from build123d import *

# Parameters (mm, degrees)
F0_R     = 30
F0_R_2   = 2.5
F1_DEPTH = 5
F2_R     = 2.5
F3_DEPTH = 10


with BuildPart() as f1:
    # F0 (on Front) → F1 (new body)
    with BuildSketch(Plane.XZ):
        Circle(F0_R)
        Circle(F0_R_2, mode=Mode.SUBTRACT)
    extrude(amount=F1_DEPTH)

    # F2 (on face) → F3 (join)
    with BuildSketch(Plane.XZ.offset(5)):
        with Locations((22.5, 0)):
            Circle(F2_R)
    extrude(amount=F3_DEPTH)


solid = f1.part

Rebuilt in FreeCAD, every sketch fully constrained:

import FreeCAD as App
import Part
import Sketcher

V = App.Vector

doc = App.newDocument("Part")
body = doc.addObject("PartDesign::Body", "Body")

# Sketch on XZ plane
sketch1 = body.newObject("Sketcher::SketchObject", "Sketch")
sketch1.AttachmentSupport = (doc.getObject("XZ_Plane"), [""])
sketch1.MapMode = "FlatFace"
sketch1.addGeometry([
    Part.Circle(V(0, 0, 0), V(0, 0, 1), 30),
    Part.Circle(V(0, 0, 0), V(0, 0, 1), 2.5),
], False)
sketch1.addConstraint([
    Sketcher.Constraint("Coincident", 0, 3, -1, 1),
    Sketcher.Constraint("Coincident", 1, 3, -1, 1),
    Sketcher.Constraint("Diameter", 0, 60.0),
    Sketcher.Constraint("Diameter", 1, 5.0),
])
pad1 = body.newObject("PartDesign::Pad", "Pad")
pad1.Profile = sketch1
pad1.Length = 5

# Sketch on XZ plane
sketch2 = body.newObject("Sketcher::SketchObject", "Sketch001")
sketch2.AttachmentSupport = (doc.getObject("XZ_Plane"), [""])
sketch2.MapMode = "FlatFace"
sketch2.AttachmentOffset = App.Placement(V(0, 0, 5), App.Rotation())
sketch2.addGeometry(Part.Circle(V(22.5, 0, 0), V(0, 0, 1), 2.5), False)
sketch2.addConstraint([
    Sketcher.Constraint("PointOnObject", 0, 3, -1),
    Sketcher.Constraint("Diameter", 0, 5.0),
    Sketcher.Constraint("DistanceX", -1, 1, 0, 3, 22.5),
])
pad2 = body.newObject("PartDesign::Pad", "Pad001")
pad2.Profile = sketch2
pad2.Length = 10

doc.recompute()
